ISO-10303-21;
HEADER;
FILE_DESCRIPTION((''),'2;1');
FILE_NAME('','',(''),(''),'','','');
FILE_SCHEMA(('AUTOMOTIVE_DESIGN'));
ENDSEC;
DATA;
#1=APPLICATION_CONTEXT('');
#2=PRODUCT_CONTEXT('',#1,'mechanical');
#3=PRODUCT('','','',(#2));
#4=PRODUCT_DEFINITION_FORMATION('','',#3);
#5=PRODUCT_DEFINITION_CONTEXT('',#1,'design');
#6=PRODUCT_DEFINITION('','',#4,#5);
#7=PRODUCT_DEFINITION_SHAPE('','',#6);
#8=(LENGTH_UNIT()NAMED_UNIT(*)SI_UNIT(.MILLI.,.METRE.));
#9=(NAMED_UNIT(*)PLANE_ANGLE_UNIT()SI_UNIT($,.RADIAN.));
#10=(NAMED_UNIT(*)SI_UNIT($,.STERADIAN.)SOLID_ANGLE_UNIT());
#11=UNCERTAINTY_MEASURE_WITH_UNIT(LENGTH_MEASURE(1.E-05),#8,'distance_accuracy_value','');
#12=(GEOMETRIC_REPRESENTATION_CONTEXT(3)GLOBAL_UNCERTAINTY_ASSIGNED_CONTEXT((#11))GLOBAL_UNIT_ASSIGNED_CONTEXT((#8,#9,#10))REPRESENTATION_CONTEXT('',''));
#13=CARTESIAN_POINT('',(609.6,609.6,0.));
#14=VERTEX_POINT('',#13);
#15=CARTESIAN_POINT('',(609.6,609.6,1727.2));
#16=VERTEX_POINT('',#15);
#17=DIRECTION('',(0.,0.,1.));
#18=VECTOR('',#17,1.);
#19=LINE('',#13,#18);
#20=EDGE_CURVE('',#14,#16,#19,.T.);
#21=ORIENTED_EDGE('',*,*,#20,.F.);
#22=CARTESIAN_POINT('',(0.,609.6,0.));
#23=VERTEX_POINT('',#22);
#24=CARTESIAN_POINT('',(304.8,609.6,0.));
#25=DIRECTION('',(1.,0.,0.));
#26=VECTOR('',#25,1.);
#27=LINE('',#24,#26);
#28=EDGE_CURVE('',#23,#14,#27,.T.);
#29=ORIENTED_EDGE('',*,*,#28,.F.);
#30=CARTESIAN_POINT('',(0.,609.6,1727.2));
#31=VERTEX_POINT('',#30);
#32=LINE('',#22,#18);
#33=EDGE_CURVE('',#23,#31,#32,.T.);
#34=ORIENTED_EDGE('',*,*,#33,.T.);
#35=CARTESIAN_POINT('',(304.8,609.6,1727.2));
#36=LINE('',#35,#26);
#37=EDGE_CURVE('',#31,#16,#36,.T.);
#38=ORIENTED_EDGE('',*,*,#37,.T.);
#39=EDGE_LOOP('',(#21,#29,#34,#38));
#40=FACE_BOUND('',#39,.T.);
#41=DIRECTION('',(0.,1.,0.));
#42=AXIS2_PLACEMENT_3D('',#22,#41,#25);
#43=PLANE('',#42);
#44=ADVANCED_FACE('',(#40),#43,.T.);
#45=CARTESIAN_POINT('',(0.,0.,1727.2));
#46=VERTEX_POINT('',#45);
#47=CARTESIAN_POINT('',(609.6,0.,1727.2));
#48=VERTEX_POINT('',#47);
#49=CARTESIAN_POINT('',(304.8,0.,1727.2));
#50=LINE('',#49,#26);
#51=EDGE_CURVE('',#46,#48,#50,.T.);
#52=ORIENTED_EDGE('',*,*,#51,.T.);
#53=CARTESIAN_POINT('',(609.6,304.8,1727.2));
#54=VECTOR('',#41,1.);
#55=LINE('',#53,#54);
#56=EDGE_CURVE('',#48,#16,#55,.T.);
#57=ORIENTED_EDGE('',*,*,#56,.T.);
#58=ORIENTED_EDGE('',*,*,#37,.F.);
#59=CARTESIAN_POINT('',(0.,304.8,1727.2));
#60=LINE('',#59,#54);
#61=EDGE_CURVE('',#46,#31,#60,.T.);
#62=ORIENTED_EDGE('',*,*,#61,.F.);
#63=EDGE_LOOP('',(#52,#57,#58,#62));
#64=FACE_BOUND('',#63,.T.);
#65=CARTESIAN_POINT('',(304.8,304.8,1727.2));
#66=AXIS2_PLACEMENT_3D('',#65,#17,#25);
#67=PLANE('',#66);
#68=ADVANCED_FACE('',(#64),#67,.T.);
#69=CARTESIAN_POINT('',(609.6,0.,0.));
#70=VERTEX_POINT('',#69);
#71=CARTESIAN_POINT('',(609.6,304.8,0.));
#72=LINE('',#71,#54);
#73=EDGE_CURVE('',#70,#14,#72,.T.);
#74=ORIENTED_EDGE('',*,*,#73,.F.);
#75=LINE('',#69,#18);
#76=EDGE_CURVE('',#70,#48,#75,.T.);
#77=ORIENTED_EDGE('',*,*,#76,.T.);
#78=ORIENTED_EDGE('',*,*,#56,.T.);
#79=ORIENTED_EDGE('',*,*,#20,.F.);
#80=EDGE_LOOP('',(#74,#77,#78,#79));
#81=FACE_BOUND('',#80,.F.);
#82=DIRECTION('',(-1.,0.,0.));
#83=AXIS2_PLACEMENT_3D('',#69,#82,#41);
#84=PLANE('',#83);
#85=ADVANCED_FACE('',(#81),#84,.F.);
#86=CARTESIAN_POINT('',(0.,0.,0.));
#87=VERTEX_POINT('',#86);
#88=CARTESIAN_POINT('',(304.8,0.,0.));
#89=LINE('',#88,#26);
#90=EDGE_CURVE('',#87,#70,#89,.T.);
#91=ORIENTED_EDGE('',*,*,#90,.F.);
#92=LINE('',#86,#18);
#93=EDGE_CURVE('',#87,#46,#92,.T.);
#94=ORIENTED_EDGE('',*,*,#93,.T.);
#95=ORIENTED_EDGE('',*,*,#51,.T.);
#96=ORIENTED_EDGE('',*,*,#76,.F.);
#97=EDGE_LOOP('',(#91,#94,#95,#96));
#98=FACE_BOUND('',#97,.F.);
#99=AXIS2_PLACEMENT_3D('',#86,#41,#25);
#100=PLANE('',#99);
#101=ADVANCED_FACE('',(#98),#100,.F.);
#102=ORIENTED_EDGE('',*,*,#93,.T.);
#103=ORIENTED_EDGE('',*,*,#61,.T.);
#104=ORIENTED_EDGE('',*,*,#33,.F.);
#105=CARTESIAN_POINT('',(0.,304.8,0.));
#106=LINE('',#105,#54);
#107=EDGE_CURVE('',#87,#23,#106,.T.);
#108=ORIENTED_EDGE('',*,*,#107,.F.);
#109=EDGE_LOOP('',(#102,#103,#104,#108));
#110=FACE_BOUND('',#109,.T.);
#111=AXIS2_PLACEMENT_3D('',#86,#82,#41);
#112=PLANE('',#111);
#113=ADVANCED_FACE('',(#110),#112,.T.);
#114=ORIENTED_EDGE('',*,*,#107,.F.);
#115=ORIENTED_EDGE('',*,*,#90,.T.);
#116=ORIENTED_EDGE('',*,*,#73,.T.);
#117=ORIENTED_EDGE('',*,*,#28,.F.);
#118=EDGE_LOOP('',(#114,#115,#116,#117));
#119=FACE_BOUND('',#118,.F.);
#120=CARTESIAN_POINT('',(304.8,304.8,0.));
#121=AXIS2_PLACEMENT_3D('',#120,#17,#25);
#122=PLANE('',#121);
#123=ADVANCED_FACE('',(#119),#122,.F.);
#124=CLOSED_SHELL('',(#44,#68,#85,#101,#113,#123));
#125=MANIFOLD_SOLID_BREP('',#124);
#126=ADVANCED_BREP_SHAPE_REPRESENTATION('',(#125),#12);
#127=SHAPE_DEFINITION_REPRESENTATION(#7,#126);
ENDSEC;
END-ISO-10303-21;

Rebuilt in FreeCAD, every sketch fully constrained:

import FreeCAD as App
import Part
import Sketcher
Q = App.Units.Quantity

doc = App.newDocument("Part")
body = doc.addObject("PartDesign::Body", "Body")

# Sketch on XY plane
sketch1 = body.newObject("Sketcher::SketchObject", "Sketch")
sketch1.AttachmentSupport = (doc.getObject("XY_Plane"), [""])
sketch1.MapMode = "FlatFace"
sketch1.addGeometry([
    Part.LineSegment(App.Vector(0, 610, 0), App.Vector(0, 0, 0)),
    Part.LineSegment(App.Vector(0, 0, 0), App.Vector(610, 0, 0)),
    Part.LineSegment(App.Vector(610, 0, 0), App.Vector(610, 610, 0)),
    Part.LineSegment(App.Vector(610, 610, 0), App.Vector(0, 610, 0)),
], False)
sketch1.addConstraint([
    Sketcher.Constraint("Coincident", 0, 2, 1, 1),
    Sketcher.Constraint("Coincident", 1, 2, 2, 1),
    Sketcher.Constraint("Coincident", 2, 2, 3, 1),
    Sketcher.Constraint("Coincident", 3, 2, 0, 1),
    Sketcher.Constraint("Vertical", 0),
    Sketcher.Constraint("Horizontal", 1),
    Sketcher.Constraint("Vertical", 2),
    Sketcher.Constraint("Horizontal", 3),
    Sketcher.Constraint("Coincident", 0, 2, -1, 1),
    Sketcher.Constraint("Equal", 3, 0),
    Sketcher.Constraint("DistanceX", 1, 1, 1, 2, Q("24 in")),
])
pad1 = body.newObject("PartDesign::Pad", "Pad")
pad1.Profile = sketch1
pad1.Length = Q("68 in")

doc.recompute()
